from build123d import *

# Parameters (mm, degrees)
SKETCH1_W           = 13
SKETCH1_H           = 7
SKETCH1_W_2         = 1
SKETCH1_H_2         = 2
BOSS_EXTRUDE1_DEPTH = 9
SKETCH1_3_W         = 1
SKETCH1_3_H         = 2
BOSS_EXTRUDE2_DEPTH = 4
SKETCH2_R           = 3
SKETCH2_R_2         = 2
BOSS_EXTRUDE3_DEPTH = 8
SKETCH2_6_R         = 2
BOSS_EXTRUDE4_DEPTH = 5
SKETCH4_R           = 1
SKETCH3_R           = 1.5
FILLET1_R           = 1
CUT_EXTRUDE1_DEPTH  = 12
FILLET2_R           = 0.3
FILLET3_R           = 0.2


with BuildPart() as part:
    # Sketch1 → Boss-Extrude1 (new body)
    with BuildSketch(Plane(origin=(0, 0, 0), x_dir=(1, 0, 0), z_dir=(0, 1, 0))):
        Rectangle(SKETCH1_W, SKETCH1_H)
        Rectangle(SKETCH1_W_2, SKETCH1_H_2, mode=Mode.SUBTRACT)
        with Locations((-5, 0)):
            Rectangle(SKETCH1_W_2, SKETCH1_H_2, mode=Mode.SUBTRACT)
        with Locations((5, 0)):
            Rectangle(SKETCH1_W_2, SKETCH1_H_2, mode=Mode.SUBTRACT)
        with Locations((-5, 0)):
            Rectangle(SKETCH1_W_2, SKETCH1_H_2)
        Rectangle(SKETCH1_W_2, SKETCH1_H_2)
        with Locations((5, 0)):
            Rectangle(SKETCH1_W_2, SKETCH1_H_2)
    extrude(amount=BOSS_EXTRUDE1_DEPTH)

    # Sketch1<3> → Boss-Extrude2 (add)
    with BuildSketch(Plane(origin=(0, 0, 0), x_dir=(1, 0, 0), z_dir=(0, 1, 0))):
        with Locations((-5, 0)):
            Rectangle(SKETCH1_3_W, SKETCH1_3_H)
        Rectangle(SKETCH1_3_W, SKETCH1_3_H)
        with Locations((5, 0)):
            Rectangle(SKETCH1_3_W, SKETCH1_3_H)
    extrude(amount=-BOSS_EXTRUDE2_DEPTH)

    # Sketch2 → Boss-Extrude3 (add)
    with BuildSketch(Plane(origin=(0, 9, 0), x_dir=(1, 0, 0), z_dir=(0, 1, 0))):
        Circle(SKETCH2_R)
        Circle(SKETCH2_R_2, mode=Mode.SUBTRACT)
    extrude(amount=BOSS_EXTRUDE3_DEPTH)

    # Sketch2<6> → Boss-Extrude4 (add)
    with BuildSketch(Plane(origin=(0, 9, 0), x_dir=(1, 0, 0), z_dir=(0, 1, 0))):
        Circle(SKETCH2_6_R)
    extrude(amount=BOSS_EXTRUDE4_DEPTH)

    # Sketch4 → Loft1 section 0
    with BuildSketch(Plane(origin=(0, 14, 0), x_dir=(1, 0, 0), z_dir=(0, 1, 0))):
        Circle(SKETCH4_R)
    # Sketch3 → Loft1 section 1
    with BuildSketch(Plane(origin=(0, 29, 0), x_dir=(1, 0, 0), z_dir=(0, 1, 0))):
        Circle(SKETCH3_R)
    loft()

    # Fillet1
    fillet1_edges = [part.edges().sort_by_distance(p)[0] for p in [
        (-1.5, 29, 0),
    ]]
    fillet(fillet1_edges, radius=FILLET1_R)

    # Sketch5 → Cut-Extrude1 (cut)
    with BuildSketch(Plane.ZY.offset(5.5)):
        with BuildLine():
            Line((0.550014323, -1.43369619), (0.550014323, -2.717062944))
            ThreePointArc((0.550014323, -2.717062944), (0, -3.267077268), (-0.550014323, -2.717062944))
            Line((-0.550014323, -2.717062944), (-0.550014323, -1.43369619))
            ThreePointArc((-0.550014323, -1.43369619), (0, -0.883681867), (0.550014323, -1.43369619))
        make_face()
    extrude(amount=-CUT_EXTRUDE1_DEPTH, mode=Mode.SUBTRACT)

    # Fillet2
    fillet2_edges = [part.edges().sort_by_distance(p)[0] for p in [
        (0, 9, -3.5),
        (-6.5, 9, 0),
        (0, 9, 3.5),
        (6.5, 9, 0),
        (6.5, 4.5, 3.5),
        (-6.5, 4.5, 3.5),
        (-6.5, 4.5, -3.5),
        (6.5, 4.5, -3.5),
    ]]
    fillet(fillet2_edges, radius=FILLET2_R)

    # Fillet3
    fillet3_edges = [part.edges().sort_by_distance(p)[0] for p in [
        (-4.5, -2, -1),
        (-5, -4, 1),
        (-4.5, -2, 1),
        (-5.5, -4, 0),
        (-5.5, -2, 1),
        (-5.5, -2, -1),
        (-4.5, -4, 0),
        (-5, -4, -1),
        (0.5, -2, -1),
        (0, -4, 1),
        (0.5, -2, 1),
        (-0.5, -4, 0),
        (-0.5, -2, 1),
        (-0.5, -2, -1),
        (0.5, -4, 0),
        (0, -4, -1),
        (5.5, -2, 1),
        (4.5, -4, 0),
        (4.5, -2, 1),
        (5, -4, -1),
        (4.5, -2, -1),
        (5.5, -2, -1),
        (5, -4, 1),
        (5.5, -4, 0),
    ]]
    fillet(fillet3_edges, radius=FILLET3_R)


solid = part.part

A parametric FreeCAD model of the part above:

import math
import FreeCAD as App
import Part
import Sketcher
from FreeCAD import Vector


def edges_at(feature, points):
    """Names of the edges that pass closest to the given points."""
    edges = feature.Shape.Edges
    near = lambda p: min(range(len(edges)), key=lambda i: edges[i].distToShape(Part.Vertex(*p))[0])
    return sorted({f"Edge{near(p) + 1}" for p in points})

doc = App.newDocument("Part")
body = doc.addObject("PartDesign::Body", "Body")

# Sketch on XZ plane
sketch1 = body.newObject("Sketcher::SketchObject", "Sketch")
sketch1.AttachmentSupport = (doc.getObject("XZ_Plane"), [""])
sketch1.MapMode = "FlatFace"
sketch1.addGeometry([
    Part.LineSegment(Vector(-6.5, -3.5, 0), Vector(-6.5, 3.5, 0)),
    Part.LineSegment(Vector(-6.5, 3.5, 0), Vector(6.5, 3.5, 0)),
    Part.LineSegment(Vector(6.5, 3.5, 0), Vector(6.5, -3.5, 0)),
    Part.LineSegment(Vector(6.5, -3.5, 0), Vector(-6.5, -3.5, 0)),
], False)
sketch1.addConstraint([
    Sketcher.Constraint("Coincident", 0, 2, 1, 1),
    Sketcher.Constraint("Coincident", 1, 2, 2, 1),
    Sketcher.Constraint("Coincident", 2, 2, 3, 1),
    Sketcher.Constraint("Coincident", 3, 2, 0, 1),
    Sketcher.Constraint("Vertical", 0),
    Sketcher.Constraint("Horizontal", 1),
    Sketcher.Constraint("Vertical", 2),
    Sketcher.Constraint("Horizontal", 3),
    Sketcher.Constraint("Symmetric", 0, 2, 2, 2, -1, 1),
    Sketcher.Constraint("DistanceX", 1, 1, 1, 2, 13.0),
    Sketcher.Constraint("DistanceY", 0, 1, 0, 2, 7.0),
])
pad1 = body.newObject("PartDesign::Pad", "Pad")
pad1.Profile = sketch1
pad1.Length = 9
pad1.Reversed = True

# Sketch on XZ plane
sketch2 = body.newObject("Sketcher::SketchObject", "Sketch001")
sketch2.AttachmentSupport = (doc.getObject("XZ_Plane"), [""])
sketch2.MapMode = "FlatFace"
sketch2.addGeometry([
    Part.LineSegment(Vector(-5.5, -1, 0), Vector(-5.5, 1, 0)),  # 0
    Part.LineSegment(Vector(-5.5, 1, 0), Vector(-4.5, 1, 0)),  # 1
    Part.LineSegment(Vector(-4.5, 1, 0), Vector(-4.5, -1, 0)),  # 2
    Part.LineSegment(Vector(-4.5, -1, 0), Vector(-5.5, -1, 0)),  # 3
    Part.LineSegment(Vector(-0.5, -1, 0), Vector(-0.5, 1, 0)),  # 4
    Part.LineSegment(Vector(-0.5, 1, 0), Vector(0.5, 1, 0)),  # 5
    Part.LineSegment(Vector(0.5, 1, 0), Vector(0.5, -1, 0)),  # 6
    Part.LineSegment(Vector(0.5, -1, 0), Vector(-0.5, -1, 0)),  # 7
    Part.LineSegment(Vector(4.5, -1, 0), Vector(4.5, 1, 0)),  # 8
    Part.LineSegment(Vector(4.5, 1, 0), Vector(5.5, 1, 0)),  # 9
    Part.LineSegment(Vector(5.5, 1, 0), Vector(5.5, -1, 0)),  # 10
    Part.LineSegment(Vector(5.5, -1, 0), Vector(4.5, -1, 0)),  # 11
], False)
sketch2.addConstraint([
    Sketcher.Constraint("Coincident", 0, 2, 1, 1),
    Sketcher.Constraint("Coincident", 1, 2, 2, 1),
    Sketcher.Constraint("Coincident", 2, 2, 3, 1),
    Sketcher.Constraint("Coincident", 3, 2, 0, 1),
    Sketcher.Constraint("Coincident", 4, 2, 5, 1),
    Sketcher.Constraint("Coincident", 5, 2, 6, 1),
    Sketcher.Constraint("Coincident", 6, 2, 7, 1),
    Sketcher.Constraint("Coincident", 7, 2, 4, 1),
    Sketcher.Constraint("Coincident", 8, 2, 9, 1),
    Sketcher.Constraint("Coincident", 9, 2, 10, 1),
    Sketcher.Constraint("Coincident", 10, 2, 11, 1),
    Sketcher.Constraint("Coincident", 11, 2, 8, 1),
    Sketcher.Constraint("Vertical", 0),
    Sketcher.Constraint("Horizontal", 1),
    Sketcher.Constraint("Vertical", 2),
    Sketcher.Constraint("Horizontal", 3),
    Sketcher.Constraint("Vertical", 4),
    Sketcher.Constraint("Horizontal", 5),
    Sketcher.Constraint("Vertical", 6),
    Sketcher.Constraint("Horizontal", 7),
    Sketcher.Constraint("Vertical", 8),
    Sketcher.Constraint("Horizontal", 9),
    Sketcher.Constraint("Vertical", 10),
    Sketcher.Constraint("Horizontal", 11),
    Sketcher.Constraint("Symmetric", 4, 2, 6, 2, -1, 1),
    Sketcher.Constraint("Symmetric", 2, 2, 8, 2, -1, 1),
    Sketcher.Constraint("Symmetric", 0, 2, 10, 2, -1, 1),
    Sketcher.Constraint("Horizontal", 1, 2, 4, 2),
    Sketcher.Constraint("Horizontal", 3, 2, 6, 2),
    Sketcher.Constraint("Equal", 3, 5),
    Sketcher.Constraint("DistanceX", 1, 1, 1, 2, 1.0),
    Sketcher.Constraint("DistanceY", 0, 1, 0, 2, 2.0),
    Sketcher.Constraint("DistanceX", 1, 2, 4, 2, 4.0),
])
pad2 = body.newObject("PartDesign::Pad", "Pad001")
pad2.Profile = sketch2
pad2.Length = 4

# Sketch on XZ plane
sketch3 = body.newObject("Sketcher::SketchObject", "Sketch002")
sketch3.AttachmentSupport = (doc.getObject("XZ_Plane"), [""])
sketch3.MapMode = "FlatFace"
sketch3.AttachmentOffset = App.Placement(Vector(0, 0, -9), App.Rotation())
sketch3.addGeometry([
    Part.Circle(Vector(0, 0, 0), Vector(0, 0, 1), 3),
    Part.Circle(Vector(0, 0, 0), Vector(0, 0, 1), 2),
], False)
sketch3.addConstraint([
    Sketcher.Constraint("Coincident", 0, 3, -1, 1),
    Sketcher.Constraint("Coincident", 1, 3, -1, 1),
    Sketcher.Constraint("Diameter", 0, 6.0),
    Sketcher.Constraint("Diameter", 1, 4.0),
])
pad3 = body.newObject("PartDesign::Pad", "Pad002")
pad3.Profile = sketch3
pad3.Length = 8
pad3.Reversed = True

# Sketch on XZ plane
sketch4 = body.newObject("Sketcher::SketchObject", "Sketch003")
sketch4.AttachmentSupport = (doc.getObject("XZ_Plane"), [""])
sketch4.MapMode = "FlatFace"
sketch4.AttachmentOffset = App.Placement(Vector(0, 0, -9), App.Rotation())
sketch4.addGeometry(Part.Circle(Vector(0, 0, 0), Vector(0, 0, 1), 2), False)
sketch4.addConstraint([
    Sketcher.Constraint("Coincident", 0, 3, -1, 1),
    Sketcher.Constraint("Diameter", 0, 4.0),
])
pad4 = body.newObject("PartDesign::Pad", "Pad003")
pad4.Profile = sketch4
pad4.Length = 5
pad4.Reversed = True

# Sketch on XZ plane
sketch5 = body.newObject("Sketcher::SketchObject", "Sketch004")
sketch5.AttachmentSupport = (doc.getObject("XZ_Plane"), [""])
sketch5.MapMode = "FlatFace"
sketch5.AttachmentOffset = App.Placement(Vector(0, 0, -14), App.Rotation())
sketch5.addGeometry(Part.Circle(Vector(0, 0, 0), Vector(0, 0, 1), 1), False)
sketch5.addConstraint([
    Sketcher.Constraint("Coincident", 0, 3, -1, 1),
    Sketcher.Constraint("Diameter", 0, 2.0),
])

# Sketch on XZ plane
sketch6 = body.newObject("Sketcher::SketchObject", "Sketch005")
sketch6.AttachmentSupport = (doc.getObject("XZ_Plane"), [""])
sketch6.MapMode = "FlatFace"
sketch6.AttachmentOffset = App.Placement(Vector(0, 0, -29), App.Rotation())
sketch6.addGeometry(Part.Circle(Vector(0, 0, 0), Vector(0, 0, 1), 1.5), False)
sketch6.addConstraint([
    Sketcher.Constraint("Coincident", 0, 3, -1, 1),
    Sketcher.Constraint("Diameter", 0, 3.0),
])

additiveloft = body.newObject("PartDesign::AdditiveLoft", "AdditiveLoft")
additiveloft.Profile = sketch5
additiveloft.Sections = [sketch6]
doc.recompute()

fillet = body.newObject("PartDesign::Fillet", "Fillet")
fillet.Base = (additiveloft, edges_at(additiveloft, [(-1.5, 29, 0)]))
fillet.Radius = 1

# Sketch on YZ plane
sketch7 = body.newObject("Sketcher::SketchObject", "Sketch006")
sketch7.AttachmentSupport = (doc.getObject("YZ_Plane"), [""])
sketch7.MapMode = "FlatFace"
sketch7.AttachmentOffset = App.Placement(Vector(0, 0, -5.5), App.Rotation())
sketch7.addGeometry([
    Part.LineSegment(Vector(-2.717063, 0.550014, 0), Vector(-1.433696, 0.550014, 0)),
    Part.ArcOfCircle(Part.Circle(Vector(-1.433696, 0, 0), Vector(0, 0, 1), 0.550014), math.radians(-90), math.radians(90)),
    Part.LineSegment(Vector(-1.433696, -0.550014, 0), Vector(-2.717063, -0.550014, 0)),
    Part.ArcOfCircle(Part.Circle(Vector(-2.717063, 0, 0), Vector(0, 0, 1), 0.550014), math.radians(90), math.radians(270)),
], False)
sketch7.addConstraint([
    Sketcher.Constraint("Tangent", 0, 2, 1, 2),
    Sketcher.Constraint("Tangent", 1, 1, 2, 1),
    Sketcher.Constraint("Tangent", 2, 2, 3, 2),
    Sketcher.Constraint("Tangent", 3, 1, 0, 1),
    Sketcher.Constraint("Horizontal", 0),
    Sketcher.Constraint("Horizontal", 2),
    Sketcher.Constraint("PointOnObject", 1, 3, -1),
    Sketcher.Constraint("Radius", 1, 0.550014),
    Sketcher.Constraint("DistanceX", 0, 1, 0, 2, 1.283367),
    Sketcher.Constraint("DistanceX", 1, 3, -1, 1, 1.433696),
])
pocket1 = body.newObject("PartDesign::Pocket", "Pocket")
pocket1.Profile = sketch7
pocket1.Length = 12
pocket1.Reversed = True
doc.recompute()

fillet2 = body.newObject("PartDesign::Fillet", "Fillet001")
fillet2.Base = (pocket1, edges_at(pocket1, [
    (0, 9, -3.5),
    (-6.5, 9, 0),
    (0, 9, 3.5),
    (6.5, 9, 0),
    (6.5, 4.5, 3.5),
    (-6.5, 4.5, 3.5),
    (-6.5, 4.5, -3.5),
    (6.5, 4.5, -3.5),
]))
fillet2.Radius = 0.3
doc.recompute()

fillet3 = body.newObject("PartDesign::Fillet", "Fillet002")
fillet3.Base = (fillet2, edges_at(fillet2, [
    (-4.5, -2, -1),
    (-5, -4, 1),
    (-4.5, -2, 1),
    (-5.5, -4, 0),
    (-5.5, -2, 1),
    (-5.5, -2, -1),
    (-4.5, -4, 0),
    (-5, -4, -1),
    (0.5, -2, -1),
    (0, -4, 1),
    (0.5, -2, 1),
    (-0.5, -4, 0),
    (-0.5, -2, 1),
    (-0.5, -2, -1),
    (0.5, -4, 0),
    (0, -4, -1),
    (5.5, -2, 1),
    (4.5, -4, 0),
    (4.5, -2, 1),
    (5, -4, -1),
    (4.5, -2, -1),
    (5.5, -2, -1),
    (5, -4, 1),
    (5.5, -4, 0),
]))
fillet3.Radius = 0.2

doc.recompute()
